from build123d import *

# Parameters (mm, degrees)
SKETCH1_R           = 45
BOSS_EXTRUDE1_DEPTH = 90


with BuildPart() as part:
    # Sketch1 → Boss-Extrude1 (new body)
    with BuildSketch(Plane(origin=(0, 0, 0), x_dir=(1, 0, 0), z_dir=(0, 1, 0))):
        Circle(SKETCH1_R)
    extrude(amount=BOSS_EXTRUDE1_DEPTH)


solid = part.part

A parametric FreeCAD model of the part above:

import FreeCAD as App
import Part
import Sketcher

V = App.Vector

doc = App.newDocument("Part")
body = doc.addObject("PartDesign::Body", "Body")

sketch1 = body.newObject("Sketcher::SketchObject", "Sketch")
sketch1.AttachmentSupport = (doc.getObject("XZ_Plane"), [""])
sketch1.MapMode = "FlatFace"
sketch1.addGeometry(Part.Circle(V(0, 0, 0), V(0, 0, 1), 45), False)
sketch1.addConstraint(Sketcher.Constraint("Coincident", 0, 3, -1, 1))
sketch1.addConstraint(Sketcher.Constraint("Diameter", 0, 90.0))
pad1 = body.newObject("PartDesign::Pad", "Pad")
pad1.Profile = sketch1
pad1.Length = 90
pad1.Reversed = True

doc.recompute()
